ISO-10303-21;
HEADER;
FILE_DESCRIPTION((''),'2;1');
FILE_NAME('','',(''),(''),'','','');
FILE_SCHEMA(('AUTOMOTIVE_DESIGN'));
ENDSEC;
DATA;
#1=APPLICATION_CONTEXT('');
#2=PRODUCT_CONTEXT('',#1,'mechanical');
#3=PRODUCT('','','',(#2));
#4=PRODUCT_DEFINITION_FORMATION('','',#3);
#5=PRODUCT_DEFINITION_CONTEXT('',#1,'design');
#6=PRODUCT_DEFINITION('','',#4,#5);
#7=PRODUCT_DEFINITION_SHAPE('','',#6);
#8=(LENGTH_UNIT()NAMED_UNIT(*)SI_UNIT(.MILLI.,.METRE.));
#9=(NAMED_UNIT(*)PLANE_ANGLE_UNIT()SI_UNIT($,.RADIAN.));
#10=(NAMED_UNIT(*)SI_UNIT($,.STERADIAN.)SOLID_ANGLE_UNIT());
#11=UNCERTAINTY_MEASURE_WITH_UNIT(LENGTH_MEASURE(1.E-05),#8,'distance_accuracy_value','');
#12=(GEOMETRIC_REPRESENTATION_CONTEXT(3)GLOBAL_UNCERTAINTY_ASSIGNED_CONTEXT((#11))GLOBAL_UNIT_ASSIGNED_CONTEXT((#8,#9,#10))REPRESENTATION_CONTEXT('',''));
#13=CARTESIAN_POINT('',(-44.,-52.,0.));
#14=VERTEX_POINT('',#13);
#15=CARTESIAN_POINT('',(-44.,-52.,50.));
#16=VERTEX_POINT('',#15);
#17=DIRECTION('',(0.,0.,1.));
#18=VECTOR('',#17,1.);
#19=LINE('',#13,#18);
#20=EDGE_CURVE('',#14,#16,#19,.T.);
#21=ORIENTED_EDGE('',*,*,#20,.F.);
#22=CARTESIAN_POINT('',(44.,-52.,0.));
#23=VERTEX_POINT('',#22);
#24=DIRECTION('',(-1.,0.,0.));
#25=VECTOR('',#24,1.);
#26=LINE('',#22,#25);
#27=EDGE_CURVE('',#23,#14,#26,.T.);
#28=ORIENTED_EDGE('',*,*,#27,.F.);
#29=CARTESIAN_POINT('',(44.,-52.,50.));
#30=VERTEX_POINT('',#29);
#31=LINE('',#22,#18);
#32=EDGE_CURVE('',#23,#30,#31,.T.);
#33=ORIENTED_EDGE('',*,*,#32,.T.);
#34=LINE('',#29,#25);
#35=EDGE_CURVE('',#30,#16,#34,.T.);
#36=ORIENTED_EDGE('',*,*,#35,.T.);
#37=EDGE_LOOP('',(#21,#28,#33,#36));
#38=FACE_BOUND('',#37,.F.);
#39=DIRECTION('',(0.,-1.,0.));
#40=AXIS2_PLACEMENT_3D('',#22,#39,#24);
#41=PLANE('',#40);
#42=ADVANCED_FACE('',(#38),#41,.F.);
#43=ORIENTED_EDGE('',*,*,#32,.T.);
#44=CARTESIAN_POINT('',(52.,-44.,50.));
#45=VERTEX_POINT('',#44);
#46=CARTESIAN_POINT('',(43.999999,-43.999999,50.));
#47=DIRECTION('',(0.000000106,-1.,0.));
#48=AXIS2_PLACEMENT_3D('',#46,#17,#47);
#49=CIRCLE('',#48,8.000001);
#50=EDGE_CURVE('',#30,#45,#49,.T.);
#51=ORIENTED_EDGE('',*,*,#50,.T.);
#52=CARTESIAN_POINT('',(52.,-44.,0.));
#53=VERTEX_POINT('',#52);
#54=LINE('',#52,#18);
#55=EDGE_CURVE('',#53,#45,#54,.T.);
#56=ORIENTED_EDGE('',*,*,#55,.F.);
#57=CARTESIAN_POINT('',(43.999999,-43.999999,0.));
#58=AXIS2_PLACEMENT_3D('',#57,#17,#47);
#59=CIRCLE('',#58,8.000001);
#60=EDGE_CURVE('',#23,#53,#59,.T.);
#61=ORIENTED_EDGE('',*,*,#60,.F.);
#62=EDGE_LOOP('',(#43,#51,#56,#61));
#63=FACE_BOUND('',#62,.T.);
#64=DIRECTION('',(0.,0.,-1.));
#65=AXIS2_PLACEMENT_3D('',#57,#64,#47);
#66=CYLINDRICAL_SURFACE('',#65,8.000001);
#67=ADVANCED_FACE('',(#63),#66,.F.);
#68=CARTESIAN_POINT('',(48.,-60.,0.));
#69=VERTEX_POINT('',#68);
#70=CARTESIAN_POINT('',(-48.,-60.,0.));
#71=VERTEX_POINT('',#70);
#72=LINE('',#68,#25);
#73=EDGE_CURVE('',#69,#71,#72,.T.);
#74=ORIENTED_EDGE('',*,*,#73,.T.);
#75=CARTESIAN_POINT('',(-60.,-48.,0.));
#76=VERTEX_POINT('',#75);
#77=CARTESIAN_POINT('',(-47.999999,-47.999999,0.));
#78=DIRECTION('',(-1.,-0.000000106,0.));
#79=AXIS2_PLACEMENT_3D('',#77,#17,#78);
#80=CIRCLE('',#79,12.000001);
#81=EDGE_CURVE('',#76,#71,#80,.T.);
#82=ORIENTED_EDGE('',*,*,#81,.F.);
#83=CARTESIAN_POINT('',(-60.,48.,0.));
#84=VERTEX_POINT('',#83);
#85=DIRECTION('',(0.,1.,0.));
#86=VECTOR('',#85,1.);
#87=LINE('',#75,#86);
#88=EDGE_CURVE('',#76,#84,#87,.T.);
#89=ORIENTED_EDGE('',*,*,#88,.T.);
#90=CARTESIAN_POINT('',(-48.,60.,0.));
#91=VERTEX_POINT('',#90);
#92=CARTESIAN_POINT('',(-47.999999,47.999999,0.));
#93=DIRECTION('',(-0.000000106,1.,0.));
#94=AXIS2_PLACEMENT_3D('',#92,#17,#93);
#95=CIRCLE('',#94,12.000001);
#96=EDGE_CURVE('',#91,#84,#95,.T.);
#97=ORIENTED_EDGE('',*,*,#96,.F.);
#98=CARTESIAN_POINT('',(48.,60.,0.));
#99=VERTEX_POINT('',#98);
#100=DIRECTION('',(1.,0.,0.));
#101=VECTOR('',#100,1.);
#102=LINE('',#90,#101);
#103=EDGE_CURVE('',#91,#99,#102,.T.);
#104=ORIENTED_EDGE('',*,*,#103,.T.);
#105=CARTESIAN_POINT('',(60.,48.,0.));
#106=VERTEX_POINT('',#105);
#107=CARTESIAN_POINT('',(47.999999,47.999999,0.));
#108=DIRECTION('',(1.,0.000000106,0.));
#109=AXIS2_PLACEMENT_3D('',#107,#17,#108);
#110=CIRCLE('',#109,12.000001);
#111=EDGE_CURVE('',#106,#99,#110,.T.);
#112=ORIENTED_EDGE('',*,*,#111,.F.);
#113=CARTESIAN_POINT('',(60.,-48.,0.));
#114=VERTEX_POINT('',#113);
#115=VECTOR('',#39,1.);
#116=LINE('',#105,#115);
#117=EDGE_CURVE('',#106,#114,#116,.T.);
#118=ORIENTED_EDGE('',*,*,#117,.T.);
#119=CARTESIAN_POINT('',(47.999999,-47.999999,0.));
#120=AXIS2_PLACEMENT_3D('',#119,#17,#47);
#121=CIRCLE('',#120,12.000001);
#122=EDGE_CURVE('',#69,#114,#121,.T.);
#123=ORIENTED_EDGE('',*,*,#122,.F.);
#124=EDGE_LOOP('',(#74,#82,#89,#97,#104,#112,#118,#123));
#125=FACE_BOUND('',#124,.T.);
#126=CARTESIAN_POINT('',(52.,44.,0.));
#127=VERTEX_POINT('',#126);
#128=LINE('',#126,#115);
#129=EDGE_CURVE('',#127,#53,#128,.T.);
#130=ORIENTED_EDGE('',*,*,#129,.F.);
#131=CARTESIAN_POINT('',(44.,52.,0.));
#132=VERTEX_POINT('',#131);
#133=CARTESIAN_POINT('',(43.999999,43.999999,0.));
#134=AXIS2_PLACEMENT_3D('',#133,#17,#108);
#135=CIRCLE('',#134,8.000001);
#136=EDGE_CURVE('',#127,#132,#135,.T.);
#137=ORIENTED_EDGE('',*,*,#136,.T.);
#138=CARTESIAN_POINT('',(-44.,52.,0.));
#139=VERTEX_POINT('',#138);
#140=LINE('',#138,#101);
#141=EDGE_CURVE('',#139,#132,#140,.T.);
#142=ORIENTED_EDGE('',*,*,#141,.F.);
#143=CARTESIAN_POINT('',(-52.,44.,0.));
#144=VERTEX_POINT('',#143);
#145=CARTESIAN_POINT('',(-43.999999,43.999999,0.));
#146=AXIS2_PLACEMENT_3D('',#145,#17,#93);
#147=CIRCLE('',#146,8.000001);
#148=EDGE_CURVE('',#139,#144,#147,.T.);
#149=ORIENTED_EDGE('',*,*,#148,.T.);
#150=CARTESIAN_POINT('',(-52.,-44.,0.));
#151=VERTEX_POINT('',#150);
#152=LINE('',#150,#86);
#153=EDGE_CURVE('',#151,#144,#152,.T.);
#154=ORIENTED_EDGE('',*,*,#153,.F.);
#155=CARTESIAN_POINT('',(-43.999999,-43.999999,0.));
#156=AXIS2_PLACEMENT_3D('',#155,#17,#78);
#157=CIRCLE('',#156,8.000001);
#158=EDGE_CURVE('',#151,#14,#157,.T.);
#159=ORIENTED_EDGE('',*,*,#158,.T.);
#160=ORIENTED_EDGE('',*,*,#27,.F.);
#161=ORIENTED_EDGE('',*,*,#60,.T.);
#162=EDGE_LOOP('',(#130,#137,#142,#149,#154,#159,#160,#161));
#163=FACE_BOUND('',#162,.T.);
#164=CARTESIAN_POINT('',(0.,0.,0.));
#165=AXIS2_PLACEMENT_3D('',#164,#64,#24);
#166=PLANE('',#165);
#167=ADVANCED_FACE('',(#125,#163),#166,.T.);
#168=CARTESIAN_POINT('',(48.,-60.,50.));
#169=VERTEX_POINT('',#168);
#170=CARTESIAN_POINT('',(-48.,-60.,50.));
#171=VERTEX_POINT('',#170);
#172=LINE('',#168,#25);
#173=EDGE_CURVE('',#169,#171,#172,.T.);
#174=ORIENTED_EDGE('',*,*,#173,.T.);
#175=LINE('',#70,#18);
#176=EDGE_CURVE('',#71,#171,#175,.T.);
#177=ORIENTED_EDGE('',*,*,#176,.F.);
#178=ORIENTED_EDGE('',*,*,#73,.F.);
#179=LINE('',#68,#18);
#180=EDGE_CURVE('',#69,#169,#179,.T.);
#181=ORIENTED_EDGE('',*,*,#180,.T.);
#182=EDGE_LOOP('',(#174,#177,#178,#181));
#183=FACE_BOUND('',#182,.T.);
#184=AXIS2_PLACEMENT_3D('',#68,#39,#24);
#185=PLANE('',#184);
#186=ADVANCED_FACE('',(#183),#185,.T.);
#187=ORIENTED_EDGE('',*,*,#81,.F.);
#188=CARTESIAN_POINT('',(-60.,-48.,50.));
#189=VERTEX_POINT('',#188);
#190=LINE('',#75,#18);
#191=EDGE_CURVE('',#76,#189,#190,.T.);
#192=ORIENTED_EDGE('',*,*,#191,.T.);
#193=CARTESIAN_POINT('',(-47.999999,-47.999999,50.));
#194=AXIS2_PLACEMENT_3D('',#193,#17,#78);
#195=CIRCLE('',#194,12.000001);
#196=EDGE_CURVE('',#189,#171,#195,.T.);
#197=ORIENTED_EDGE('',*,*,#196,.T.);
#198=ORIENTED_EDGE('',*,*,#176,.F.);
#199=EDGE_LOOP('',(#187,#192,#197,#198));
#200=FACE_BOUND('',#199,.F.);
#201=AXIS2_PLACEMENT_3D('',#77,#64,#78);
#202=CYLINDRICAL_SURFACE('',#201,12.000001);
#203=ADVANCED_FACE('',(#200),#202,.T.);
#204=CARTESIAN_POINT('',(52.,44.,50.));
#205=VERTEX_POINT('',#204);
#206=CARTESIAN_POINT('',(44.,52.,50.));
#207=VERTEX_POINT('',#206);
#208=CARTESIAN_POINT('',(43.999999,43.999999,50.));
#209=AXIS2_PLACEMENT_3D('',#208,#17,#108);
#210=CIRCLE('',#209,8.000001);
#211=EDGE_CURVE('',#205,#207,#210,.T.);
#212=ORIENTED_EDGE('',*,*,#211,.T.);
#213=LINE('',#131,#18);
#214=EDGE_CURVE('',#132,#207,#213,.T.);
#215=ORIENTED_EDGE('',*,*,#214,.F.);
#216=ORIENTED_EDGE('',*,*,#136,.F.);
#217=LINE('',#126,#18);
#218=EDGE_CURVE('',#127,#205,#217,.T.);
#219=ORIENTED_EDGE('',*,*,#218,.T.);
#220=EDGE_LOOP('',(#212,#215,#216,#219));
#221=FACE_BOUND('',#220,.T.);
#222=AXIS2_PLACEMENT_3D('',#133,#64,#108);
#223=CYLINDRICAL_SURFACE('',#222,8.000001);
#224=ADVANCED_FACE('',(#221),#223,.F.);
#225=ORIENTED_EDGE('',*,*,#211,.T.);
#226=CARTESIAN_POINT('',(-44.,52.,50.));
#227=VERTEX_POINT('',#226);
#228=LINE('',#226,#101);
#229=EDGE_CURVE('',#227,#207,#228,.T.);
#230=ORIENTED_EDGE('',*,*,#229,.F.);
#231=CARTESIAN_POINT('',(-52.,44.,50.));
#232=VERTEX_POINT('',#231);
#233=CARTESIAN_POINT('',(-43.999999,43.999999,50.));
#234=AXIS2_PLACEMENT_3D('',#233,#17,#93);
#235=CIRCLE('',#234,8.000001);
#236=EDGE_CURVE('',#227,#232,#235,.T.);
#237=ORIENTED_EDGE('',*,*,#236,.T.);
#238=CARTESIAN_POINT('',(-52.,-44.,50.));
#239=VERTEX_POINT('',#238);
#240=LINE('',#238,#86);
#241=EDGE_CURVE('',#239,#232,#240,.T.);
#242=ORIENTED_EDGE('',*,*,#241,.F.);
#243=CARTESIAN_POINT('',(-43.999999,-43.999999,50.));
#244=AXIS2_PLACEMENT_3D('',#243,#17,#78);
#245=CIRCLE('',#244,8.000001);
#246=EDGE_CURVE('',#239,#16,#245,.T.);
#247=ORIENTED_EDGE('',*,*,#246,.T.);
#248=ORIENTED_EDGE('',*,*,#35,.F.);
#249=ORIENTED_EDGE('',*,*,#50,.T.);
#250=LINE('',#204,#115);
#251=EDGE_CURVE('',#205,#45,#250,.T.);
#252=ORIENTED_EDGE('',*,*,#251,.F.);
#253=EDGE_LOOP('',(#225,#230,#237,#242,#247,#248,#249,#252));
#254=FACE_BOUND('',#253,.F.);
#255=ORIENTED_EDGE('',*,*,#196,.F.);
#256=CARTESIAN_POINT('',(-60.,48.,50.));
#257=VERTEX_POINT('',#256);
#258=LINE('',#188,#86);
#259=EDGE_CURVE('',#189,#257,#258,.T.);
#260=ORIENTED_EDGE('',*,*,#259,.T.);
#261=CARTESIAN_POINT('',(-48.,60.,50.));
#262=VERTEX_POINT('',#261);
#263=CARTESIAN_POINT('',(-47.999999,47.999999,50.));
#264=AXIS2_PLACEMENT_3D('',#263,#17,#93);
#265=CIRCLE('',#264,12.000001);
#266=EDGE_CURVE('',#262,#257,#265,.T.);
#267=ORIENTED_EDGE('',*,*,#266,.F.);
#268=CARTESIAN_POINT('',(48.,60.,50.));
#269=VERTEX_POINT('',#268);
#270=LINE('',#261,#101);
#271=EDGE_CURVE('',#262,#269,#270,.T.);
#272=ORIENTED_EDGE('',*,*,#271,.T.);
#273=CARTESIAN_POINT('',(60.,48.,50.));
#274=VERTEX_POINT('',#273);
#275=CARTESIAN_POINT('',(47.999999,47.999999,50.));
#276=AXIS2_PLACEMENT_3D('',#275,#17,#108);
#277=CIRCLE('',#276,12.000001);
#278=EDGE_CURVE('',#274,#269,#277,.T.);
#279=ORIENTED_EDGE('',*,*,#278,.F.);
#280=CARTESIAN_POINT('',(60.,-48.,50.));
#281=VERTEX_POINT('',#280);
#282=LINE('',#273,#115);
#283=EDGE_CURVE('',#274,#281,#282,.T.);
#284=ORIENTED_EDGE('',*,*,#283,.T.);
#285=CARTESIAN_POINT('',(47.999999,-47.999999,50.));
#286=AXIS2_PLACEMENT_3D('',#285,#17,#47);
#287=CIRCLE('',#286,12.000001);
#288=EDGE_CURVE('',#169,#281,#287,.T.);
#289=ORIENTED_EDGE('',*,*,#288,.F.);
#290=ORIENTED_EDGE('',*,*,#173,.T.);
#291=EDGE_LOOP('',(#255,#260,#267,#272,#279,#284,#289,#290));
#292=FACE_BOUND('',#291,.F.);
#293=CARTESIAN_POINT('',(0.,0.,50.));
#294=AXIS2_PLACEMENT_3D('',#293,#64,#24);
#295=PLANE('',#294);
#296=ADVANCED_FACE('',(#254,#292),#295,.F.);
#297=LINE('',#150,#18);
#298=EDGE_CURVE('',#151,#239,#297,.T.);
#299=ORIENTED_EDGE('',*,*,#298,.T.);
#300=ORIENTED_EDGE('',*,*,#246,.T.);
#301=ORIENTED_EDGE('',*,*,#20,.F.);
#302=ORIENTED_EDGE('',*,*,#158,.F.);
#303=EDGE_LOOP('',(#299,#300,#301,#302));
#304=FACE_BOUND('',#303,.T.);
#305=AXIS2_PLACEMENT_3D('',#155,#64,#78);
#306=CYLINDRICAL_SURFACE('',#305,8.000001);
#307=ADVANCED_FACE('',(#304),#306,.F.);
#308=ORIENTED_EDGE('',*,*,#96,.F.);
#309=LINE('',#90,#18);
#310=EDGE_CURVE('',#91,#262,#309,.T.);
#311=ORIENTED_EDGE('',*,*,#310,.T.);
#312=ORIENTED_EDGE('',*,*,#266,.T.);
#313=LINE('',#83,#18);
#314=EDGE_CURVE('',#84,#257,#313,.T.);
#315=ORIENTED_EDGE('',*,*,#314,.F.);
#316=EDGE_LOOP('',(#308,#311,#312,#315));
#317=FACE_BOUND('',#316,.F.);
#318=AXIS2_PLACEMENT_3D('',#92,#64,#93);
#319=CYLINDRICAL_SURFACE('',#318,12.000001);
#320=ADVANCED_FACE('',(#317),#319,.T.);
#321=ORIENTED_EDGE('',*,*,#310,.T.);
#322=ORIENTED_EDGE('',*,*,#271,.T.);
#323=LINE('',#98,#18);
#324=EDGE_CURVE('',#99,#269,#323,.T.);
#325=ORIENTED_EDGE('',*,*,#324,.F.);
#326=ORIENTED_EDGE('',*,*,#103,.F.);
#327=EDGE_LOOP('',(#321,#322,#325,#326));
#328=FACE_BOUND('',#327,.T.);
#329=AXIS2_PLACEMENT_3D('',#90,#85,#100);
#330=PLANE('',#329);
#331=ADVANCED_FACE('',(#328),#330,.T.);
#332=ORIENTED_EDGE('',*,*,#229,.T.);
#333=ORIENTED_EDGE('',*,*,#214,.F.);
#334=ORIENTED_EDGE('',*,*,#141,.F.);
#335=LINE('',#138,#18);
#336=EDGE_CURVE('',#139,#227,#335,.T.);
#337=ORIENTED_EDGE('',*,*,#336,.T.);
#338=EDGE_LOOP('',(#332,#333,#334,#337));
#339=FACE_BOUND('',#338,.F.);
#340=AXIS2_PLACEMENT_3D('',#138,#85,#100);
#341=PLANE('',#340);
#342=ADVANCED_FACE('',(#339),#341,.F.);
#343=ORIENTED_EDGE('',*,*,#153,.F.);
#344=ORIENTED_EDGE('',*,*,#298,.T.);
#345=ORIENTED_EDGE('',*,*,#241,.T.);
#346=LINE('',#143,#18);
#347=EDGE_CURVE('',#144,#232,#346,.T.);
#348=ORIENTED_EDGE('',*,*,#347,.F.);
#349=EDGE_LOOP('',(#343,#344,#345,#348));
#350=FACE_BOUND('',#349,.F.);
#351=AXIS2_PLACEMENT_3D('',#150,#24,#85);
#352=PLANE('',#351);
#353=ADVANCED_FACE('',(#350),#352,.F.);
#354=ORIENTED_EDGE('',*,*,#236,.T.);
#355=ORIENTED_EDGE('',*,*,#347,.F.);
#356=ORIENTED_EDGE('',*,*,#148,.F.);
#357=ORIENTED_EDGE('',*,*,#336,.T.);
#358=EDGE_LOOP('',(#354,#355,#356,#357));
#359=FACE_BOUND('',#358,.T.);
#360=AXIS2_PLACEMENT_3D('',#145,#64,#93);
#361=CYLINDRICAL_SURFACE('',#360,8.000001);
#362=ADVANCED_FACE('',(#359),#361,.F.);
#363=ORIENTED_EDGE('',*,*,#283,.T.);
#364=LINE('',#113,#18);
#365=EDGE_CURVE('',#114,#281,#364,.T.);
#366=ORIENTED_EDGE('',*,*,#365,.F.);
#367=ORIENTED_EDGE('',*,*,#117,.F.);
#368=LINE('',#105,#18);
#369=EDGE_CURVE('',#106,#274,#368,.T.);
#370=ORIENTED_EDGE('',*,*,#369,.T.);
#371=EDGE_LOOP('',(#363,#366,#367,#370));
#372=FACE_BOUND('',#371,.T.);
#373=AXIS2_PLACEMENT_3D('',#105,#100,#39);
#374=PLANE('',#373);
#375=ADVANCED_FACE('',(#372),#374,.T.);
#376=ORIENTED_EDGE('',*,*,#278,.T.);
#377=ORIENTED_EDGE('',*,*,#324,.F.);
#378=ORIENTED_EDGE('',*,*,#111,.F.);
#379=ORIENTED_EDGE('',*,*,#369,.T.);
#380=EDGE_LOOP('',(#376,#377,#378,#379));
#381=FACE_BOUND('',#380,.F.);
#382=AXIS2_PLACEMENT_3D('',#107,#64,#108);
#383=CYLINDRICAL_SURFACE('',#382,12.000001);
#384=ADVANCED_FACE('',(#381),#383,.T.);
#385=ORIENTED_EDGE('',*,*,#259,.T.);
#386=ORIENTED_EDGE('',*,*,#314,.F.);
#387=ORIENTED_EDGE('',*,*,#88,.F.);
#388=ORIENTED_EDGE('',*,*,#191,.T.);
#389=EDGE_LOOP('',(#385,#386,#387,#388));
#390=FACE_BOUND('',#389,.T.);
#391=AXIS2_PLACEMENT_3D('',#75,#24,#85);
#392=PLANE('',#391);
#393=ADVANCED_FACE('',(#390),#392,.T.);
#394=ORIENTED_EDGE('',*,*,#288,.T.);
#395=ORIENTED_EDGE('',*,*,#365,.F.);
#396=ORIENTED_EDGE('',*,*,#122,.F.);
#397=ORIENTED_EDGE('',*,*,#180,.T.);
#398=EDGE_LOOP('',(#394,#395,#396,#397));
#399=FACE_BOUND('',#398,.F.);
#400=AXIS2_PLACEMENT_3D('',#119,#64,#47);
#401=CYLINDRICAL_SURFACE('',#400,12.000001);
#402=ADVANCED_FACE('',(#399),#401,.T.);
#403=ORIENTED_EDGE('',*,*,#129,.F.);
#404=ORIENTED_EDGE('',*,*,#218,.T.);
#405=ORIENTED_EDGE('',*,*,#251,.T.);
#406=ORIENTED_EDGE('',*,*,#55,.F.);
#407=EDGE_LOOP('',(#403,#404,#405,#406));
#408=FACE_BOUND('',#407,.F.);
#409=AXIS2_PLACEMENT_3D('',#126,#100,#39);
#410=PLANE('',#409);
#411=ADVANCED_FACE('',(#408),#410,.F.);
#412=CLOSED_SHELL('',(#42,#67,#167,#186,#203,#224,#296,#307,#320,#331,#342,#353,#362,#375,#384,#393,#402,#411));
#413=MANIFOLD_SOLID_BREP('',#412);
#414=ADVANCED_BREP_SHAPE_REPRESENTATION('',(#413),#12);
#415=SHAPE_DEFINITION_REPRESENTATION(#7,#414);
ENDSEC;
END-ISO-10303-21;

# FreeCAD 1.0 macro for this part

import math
import FreeCAD as App
import Part
import Sketcher

doc = App.newDocument("Part")
params = doc.addObject("Spreadsheet::Sheet", "Params")
for row, (alias, value) in enumerate([
    ("sketch1_radius", "12.000001 mm"),
    ("sketch1_radius2", "8.000001 mm"),
    ("sketch1_width", "96 mm"),
    ("sketch1_width2", "88 mm"),
    ("pad1_length", "50 mm"),
], start=1):
    params.set(f"A{row}", alias)
    params.set(f"B{row}", "=" + value)
    params.setAlias(f"B{row}", alias)

body = doc.addObject("PartDesign::Body", "Body")

# Sketch on XY plane
sketch1 = body.newObject("Sketcher::SketchObject", "Sketch")
sketch1.AttachmentSupport = (doc.getObject("XY_Plane"), [""])
sketch1.MapMode = "FlatFace"
sketch1.addGeometry(Part.LineSegment(App.Vector(48, 60, 0), App.Vector(-48, 60, 0)), False)
sketch1.addGeometry(Part.ArcOfCircle(Part.Circle(App.Vector(-47.999999, 47.999999, 0), App.Vector(0, 0, 1), 12.000001), math.radians(90.000006), math.radians(179.999994)), False)
sketch1.addGeometry(Part.LineSegment(App.Vector(-60, 48, 0), App.Vector(-60, -48, 0)), False)
sketch1.addGeometry(Part.ArcOfCircle(Part.Circle(App.Vector(-47.999999, -47.999999, 0), App.Vector(0, 0, 1), 12.000001), math.radians(-179.999994), math.radians(-90.000006)), False)
sketch1.addGeometry(Part.LineSegment(App.Vector(-48, -60, 0), App.Vector(48, -60, 0)), False)
sketch1.addGeometry(Part.ArcOfCircle(Part.Circle(App.Vector(47.999999, -47.999999, 0), App.Vector(0, 0, 1), 12.000001), math.radians(-89.999994), math.radians(-0.000006)), False)
sketch1.addGeometry(Part.LineSegment(App.Vector(60, -48, 0), App.Vector(60, 48, 0)), False)
sketch1.addGeometry(Part.ArcOfCircle(Part.Circle(App.Vector(47.999999, 47.999999, 0), App.Vector(0, 0, 1), 12.000001), math.radians(0.000006), math.radians(89.999994)), False)
sketch1.addGeometry(Part.LineSegment(App.Vector(-44, 52, 0), App.Vector(44, 52, 0)), False)
sketch1.addGeometry(Part.ArcOfCircle(Part.Circle(App.Vector(43.999999, 43.999999, 0), App.Vector(0, 0, 1), 8.000001), math.radians(0.000006), math.radians(89.999994)), False)
sketch1.addGeometry(Part.LineSegment(App.Vector(52, 44, 0), App.Vector(52, -44, 0)), False)
sketch1.addGeometry(Part.ArcOfCircle(Part.Circle(App.Vector(43.999999, -43.999999, 0), App.Vector(0, 0, 1), 8.000001), math.radians(-89.999994), math.radians(-0.000006)), False)
sketch1.addGeometry(Part.LineSegment(App.Vector(44, -52, 0), App.Vector(-44, -52, 0)), False)
sketch1.addGeometry(Part.ArcOfCircle(Part.Circle(App.Vector(-43.999999, -43.999999, 0), App.Vector(0, 0, 1), 8.000001), math.radians(-179.999994), math.radians(-90.000006)), False)
sketch1.addGeometry(Part.LineSegment(App.Vector(-52, -44, 0), App.Vector(-52, 44, 0)), False)
sketch1.addGeometry(Part.ArcOfCircle(Part.Circle(App.Vector(-43.999999, 43.999999, 0), App.Vector(0, 0, 1), 8.000001), math.radians(90.000006), math.radians(179.999994)), False)
sketch1.addConstraint(Sketcher.Constraint("Tangent", 0, 2, 1, 1))
sketch1.addConstraint(Sketcher.Constraint("Tangent", 1, 2, 2, 1))
sketch1.addConstraint(Sketcher.Constraint("Tangent", 2, 2, 3, 1))
sketch1.addConstraint(Sketcher.Constraint("Tangent", 3, 2, 4, 1))
sketch1.addConstraint(Sketcher.Constraint("Tangent", 4, 2, 5, 1))
sketch1.addConstraint(Sketcher.Constraint("Tangent", 5, 2, 6, 1))
sketch1.addConstraint(Sketcher.Constraint("Tangent", 6, 2, 7, 1))
sketch1.addConstraint(Sketcher.Constraint("Tangent", 7, 2, 0, 1))
sketch1.addConstraint(Sketcher.Constraint("Tangent", 8, 2, 9, 2))
sketch1.addConstraint(Sketcher.Constraint("Tangent", 9, 1, 10, 1))
sketch1.addConstraint(Sketcher.Constraint("Tangent", 10, 2, 11, 2))
sketch1.addConstraint(Sketcher.Constraint("Tangent", 11, 1, 12, 1))
sketch1.addConstraint(Sketcher.Constraint("Tangent", 12, 2, 13, 2))
sketch1.addConstraint(Sketcher.Constraint("Tangent", 13, 1, 14, 1))
sketch1.addConstraint(Sketcher.Constraint("Tangent", 14, 2, 15, 2))
sketch1.addConstraint(Sketcher.Constraint("Tangent", 15, 1, 8, 1))
sketch1.addConstraint(Sketcher.Constraint("Horizontal", 0))
sketch1.addConstraint(Sketcher.Constraint("Vertical", 2))
sketch1.addConstraint(Sketcher.Constraint("Horizontal", 4))
sketch1.addConstraint(Sketcher.Constraint("Vertical", 6))
sketch1.addConstraint(Sketcher.Constraint("Horizontal", 8))
sketch1.addConstraint(Sketcher.Constraint("Vertical", 10))
sketch1.addConstraint(Sketcher.Constraint("Horizontal", 12))
sketch1.addConstraint(Sketcher.Constraint("Vertical", 14))
sketch1.addConstraint(Sketcher.Constraint("Equal", 1, 3))
sketch1.addConstraint(Sketcher.Constraint("Equal", 3, 5))
sketch1.addConstraint(Sketcher.Constraint("Equal", 5, 7))
sketch1.addConstraint(Sketcher.Constraint("Equal", 9, 11))
sketch1.addConstraint(Sketcher.Constraint("Equal", 11, 13))
sketch1.addConstraint(Sketcher.Constraint("Equal", 13, 15))
sketch1.addConstraint(Sketcher.Constraint("Symmetric", 1, 3, 5, 3, -1, 1))
sketch1.addConstraint(Sketcher.Constraint("Symmetric", 9, 3, 13, 3, -1, 1))
sketch1.addConstraint(Sketcher.Constraint("Equal", 4, 2))
sketch1.addConstraint(Sketcher.Constraint("Equal", 12, 10))
sketch1.addConstraint(Sketcher.Constraint("Radius", 1, 12.000001))
sketch1.addConstraint(Sketcher.Constraint("Radius", 9, 8.000001))
sketch1.addConstraint(Sketcher.Constraint("DistanceX", 0, 2, 0, 1, 96.0))
sketch1.addConstraint(Sketcher.Constraint("DistanceX", 8, 1, 8, 2, 88.0))
sketch1.setExpression("Constraints[34]", "Params.sketch1_radius")
sketch1.setExpression("Constraints[35]", "Params.sketch1_radius2")
sketch1.setExpression("Constraints[36]", "Params.sketch1_width")
sketch1.setExpression("Constraints[37]", "Params.sketch1_width2")
pad1 = body.newObject("PartDesign::Pad", "Pad")
pad1.Profile = sketch1
pad1.setExpression("Length", "Params.pad1_length")

doc.recompute()
